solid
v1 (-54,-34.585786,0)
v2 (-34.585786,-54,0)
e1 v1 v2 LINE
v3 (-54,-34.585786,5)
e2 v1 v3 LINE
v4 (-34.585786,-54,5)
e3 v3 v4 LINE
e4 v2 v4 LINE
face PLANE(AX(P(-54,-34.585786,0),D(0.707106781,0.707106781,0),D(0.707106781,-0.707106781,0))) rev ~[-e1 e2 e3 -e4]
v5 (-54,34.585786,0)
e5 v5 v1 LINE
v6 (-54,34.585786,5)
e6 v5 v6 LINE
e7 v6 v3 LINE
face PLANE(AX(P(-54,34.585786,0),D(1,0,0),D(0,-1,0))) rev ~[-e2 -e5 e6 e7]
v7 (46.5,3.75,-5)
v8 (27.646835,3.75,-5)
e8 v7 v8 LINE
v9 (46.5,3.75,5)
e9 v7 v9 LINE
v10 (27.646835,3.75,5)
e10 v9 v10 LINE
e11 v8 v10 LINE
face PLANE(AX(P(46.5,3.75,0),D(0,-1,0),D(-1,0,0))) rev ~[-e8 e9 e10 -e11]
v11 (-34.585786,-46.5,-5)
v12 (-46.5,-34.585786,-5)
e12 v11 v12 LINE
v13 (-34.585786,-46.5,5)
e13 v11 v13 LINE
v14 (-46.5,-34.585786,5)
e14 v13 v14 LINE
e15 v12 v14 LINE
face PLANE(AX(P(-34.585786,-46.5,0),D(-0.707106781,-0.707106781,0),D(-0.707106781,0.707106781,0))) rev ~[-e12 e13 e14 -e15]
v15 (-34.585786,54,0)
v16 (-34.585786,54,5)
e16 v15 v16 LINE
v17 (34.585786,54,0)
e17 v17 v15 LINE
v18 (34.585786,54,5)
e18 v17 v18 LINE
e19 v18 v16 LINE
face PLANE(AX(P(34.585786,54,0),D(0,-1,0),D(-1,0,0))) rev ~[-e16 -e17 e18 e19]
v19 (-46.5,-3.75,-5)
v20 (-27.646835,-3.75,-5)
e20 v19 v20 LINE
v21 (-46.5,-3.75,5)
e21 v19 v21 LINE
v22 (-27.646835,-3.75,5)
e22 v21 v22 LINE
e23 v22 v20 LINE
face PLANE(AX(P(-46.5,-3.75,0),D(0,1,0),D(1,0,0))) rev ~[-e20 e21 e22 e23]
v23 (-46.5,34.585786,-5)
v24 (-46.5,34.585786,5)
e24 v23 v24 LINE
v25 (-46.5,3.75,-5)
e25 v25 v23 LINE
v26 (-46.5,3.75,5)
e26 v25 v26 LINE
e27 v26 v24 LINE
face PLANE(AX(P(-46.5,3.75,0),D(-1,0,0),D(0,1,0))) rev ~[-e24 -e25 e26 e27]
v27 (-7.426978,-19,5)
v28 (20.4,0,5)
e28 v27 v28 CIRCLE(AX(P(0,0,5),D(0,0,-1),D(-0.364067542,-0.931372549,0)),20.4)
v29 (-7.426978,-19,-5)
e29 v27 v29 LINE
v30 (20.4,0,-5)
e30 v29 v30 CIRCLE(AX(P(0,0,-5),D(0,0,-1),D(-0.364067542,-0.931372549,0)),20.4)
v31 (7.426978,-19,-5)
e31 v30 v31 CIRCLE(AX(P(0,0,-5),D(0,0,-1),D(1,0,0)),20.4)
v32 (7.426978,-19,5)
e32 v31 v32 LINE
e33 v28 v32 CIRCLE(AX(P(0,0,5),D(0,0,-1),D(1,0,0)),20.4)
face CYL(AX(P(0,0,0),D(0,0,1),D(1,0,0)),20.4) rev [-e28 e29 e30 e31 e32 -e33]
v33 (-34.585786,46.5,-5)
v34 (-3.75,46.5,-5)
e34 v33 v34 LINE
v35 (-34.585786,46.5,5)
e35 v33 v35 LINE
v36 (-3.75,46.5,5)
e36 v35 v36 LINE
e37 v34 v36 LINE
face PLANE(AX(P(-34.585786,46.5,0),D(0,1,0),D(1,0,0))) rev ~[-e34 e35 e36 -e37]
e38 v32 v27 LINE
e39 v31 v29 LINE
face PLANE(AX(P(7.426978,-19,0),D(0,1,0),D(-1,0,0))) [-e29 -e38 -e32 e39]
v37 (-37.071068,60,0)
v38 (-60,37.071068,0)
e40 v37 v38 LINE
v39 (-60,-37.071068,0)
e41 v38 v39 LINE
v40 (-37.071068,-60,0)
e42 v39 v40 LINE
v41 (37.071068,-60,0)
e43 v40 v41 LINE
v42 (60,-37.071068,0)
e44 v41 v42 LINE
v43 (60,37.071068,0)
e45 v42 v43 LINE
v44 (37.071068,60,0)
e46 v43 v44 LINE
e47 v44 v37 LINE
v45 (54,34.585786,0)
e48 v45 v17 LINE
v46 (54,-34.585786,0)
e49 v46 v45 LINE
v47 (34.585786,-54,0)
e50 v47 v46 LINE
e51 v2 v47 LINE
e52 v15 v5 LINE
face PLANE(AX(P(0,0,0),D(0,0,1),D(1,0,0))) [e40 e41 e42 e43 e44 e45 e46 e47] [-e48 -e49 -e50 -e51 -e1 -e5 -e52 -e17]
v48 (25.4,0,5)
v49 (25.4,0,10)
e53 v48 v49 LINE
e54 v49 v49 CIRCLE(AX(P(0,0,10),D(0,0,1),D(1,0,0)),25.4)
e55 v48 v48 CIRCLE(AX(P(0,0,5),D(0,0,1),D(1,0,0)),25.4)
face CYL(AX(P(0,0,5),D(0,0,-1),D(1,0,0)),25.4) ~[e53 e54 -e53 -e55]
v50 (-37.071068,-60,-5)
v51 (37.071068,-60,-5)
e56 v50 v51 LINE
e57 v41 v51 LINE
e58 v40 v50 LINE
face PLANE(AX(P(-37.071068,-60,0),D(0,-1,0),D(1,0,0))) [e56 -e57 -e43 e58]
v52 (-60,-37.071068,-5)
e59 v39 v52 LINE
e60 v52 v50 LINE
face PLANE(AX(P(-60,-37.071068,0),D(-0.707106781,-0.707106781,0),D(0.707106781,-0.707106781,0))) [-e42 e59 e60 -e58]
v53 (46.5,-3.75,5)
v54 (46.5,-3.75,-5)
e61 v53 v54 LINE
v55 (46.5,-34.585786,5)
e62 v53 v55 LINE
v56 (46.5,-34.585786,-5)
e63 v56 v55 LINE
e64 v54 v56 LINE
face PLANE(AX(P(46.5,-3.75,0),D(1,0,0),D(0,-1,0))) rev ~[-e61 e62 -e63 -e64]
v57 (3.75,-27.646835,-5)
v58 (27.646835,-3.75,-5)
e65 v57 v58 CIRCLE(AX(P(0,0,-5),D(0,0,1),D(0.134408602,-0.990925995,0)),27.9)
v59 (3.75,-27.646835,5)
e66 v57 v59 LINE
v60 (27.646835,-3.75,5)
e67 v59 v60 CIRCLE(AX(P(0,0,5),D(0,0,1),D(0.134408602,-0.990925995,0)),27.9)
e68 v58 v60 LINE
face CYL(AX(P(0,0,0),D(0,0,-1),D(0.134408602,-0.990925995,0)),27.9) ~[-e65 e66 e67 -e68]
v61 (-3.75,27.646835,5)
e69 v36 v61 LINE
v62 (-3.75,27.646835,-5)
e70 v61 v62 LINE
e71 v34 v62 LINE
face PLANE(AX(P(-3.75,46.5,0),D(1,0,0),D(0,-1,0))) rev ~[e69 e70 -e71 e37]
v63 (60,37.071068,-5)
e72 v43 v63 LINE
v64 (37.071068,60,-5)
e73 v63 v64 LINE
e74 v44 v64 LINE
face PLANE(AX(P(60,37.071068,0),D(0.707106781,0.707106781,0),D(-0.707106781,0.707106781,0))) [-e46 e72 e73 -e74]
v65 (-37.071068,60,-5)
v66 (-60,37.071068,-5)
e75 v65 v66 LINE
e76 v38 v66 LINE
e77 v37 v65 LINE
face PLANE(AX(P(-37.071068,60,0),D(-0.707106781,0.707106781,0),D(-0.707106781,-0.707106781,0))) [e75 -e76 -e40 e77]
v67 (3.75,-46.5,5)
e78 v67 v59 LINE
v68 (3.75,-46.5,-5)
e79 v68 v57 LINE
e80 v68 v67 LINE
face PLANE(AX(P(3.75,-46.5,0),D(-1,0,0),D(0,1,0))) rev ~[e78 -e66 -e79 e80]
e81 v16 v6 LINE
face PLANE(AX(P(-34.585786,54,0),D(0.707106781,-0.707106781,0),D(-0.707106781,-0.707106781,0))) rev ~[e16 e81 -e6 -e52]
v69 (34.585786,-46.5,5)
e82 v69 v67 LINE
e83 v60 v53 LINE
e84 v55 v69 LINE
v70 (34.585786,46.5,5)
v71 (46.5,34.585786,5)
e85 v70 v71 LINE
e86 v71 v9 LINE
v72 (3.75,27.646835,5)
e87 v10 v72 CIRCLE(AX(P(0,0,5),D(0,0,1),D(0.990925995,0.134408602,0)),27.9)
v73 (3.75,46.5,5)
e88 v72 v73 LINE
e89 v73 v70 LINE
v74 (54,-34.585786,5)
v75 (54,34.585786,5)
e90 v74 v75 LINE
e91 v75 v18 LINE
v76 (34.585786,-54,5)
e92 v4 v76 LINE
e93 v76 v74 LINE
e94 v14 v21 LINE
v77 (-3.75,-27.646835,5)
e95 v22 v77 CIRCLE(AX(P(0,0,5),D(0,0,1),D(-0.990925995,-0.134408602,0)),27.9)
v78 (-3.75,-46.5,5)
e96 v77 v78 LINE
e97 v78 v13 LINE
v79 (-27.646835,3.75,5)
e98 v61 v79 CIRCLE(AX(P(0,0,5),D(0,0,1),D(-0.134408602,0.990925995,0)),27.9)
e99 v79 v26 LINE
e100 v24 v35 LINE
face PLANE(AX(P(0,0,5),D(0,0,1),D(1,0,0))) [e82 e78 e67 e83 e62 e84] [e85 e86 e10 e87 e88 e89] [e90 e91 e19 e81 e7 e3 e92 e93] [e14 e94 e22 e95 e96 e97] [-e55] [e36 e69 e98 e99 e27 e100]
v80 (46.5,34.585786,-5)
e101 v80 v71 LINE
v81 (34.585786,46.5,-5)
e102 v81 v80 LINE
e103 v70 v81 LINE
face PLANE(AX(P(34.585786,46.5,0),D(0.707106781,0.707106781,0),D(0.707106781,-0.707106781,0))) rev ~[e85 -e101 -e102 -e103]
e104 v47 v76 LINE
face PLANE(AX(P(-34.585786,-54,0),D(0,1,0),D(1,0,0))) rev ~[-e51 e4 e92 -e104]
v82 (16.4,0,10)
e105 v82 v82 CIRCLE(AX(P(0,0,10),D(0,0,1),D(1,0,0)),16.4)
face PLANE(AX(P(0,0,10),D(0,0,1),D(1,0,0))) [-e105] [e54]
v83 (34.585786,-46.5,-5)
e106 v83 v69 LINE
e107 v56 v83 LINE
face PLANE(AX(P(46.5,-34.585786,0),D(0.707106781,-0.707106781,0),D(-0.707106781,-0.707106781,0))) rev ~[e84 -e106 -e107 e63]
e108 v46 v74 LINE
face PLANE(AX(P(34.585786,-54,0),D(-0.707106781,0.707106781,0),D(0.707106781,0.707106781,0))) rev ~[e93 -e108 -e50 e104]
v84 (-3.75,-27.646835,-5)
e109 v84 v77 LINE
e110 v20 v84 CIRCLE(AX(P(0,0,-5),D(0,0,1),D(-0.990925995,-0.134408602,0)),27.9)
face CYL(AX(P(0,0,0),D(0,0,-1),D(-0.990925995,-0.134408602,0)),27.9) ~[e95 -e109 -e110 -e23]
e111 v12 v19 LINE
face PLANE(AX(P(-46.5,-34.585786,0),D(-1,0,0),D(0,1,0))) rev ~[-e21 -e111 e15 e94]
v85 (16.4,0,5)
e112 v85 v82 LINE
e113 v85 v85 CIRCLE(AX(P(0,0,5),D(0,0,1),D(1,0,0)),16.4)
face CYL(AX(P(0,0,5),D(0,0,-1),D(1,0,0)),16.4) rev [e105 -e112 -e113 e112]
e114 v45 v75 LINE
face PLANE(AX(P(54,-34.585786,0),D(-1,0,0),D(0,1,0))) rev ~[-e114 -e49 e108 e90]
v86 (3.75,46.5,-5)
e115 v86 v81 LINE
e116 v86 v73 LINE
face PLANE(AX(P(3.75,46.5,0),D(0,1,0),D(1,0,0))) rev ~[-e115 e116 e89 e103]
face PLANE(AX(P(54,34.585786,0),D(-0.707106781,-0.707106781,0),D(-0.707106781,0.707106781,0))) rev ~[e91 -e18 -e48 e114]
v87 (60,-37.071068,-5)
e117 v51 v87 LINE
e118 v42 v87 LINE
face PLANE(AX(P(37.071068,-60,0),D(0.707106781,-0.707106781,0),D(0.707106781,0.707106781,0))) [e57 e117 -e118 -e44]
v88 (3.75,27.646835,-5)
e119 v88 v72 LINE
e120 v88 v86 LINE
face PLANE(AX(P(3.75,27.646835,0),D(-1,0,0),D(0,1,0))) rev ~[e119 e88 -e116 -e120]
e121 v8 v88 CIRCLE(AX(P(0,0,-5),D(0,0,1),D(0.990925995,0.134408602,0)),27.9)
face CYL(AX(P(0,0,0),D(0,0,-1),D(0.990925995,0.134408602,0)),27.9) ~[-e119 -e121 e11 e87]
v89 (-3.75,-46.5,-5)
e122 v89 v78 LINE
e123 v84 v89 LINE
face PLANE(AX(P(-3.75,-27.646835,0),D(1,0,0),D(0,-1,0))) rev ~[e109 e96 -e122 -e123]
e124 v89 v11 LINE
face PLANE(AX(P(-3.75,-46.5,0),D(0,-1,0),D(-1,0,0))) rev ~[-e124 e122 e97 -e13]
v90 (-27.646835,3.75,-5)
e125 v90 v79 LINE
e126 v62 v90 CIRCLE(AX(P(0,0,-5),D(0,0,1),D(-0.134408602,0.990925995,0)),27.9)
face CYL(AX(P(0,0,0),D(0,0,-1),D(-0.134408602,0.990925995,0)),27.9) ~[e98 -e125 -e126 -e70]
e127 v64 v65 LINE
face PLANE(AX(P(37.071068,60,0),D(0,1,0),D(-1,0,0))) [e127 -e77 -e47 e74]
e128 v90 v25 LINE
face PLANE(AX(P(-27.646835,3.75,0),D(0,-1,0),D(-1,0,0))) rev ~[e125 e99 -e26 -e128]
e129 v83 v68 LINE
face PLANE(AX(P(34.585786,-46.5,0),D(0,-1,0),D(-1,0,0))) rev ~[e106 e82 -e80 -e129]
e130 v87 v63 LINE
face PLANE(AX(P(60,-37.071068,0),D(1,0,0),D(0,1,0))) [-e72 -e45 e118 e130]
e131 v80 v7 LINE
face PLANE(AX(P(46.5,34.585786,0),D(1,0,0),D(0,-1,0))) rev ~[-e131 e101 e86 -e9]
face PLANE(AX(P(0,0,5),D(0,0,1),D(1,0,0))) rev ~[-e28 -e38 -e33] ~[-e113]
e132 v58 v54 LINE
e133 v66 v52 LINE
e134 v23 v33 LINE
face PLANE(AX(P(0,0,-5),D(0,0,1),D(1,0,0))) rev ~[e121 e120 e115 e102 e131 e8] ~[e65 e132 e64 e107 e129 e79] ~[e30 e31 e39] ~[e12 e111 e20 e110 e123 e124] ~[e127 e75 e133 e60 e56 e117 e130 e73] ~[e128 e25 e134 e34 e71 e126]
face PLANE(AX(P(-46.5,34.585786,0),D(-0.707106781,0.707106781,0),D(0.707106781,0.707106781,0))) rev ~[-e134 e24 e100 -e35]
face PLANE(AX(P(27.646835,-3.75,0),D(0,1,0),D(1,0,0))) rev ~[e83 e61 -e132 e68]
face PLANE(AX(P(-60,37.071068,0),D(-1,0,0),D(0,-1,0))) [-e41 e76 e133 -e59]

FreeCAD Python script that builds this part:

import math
import FreeCAD as App
import Part
import Sketcher
from FreeCAD import Vector
Q = App.Units.Quantity

doc = App.newDocument("Part")
params = doc.addObject("Spreadsheet::Sheet", "Params")
for row, (alias, value) in enumerate([
    ("sketch1_radius", "27.9 mm"),
    ("sketch1_radius2", "20.4 mm"),
    ("pad1_length", "5 mm"),
    ("sketch2_radius", "27.9 mm"),
    ("sketch2_radius2", "20.4 mm"),
    ("pad2_length", "5 mm"),
    ("sketch3_diameter", "50.8 mm"),
    ("sketch3_diameter2", "32.8 mm"),
    ("pad3_length", "5 mm"),
], start=1):
    params.set(f"A{row}", alias)
    params.set(f"B{row}", "=" + value)
    params.setAlias(f"B{row}", alias)

body = doc.addObject("PartDesign::Body", "Body")

# Sketch on XY plane
sketch1 = doc.addObject("Sketcher::SketchObject", "Sketch")
body.addObject(sketch1)
sketch1.AttachmentSupport = (doc.XY_Plane, [""])
sketch1.MapMode = "FlatFace"
sketch1.addGeometry([
    Part.LineSegment(Vector(-60, 37.071068, 0), Vector(-60, -37.071068, 0)),  # 0
    Part.LineSegment(Vector(-60, -37.071068, 0), Vector(-37.071068, -60, 0)),  # 1
    Part.LineSegment(Vector(-37.071068, -60, 0), Vector(37.071068, -60, 0)),  # 2
    Part.LineSegment(Vector(37.071068, -60, 0), Vector(60, -37.071068, 0)),  # 3
    Part.LineSegment(Vector(60, -37.071068, 0), Vector(60, 37.071068, 0)),  # 4
    Part.LineSegment(Vector(60, 37.071068, 0), Vector(37.071068, 60, 0)),  # 5
    Part.LineSegment(Vector(37.071068, 60, 0), Vector(-37.071068, 60, 0)),  # 6
    Part.LineSegment(Vector(-37.071068, 60, 0), Vector(-60, 37.071068, 0)),  # 7
    Part.ArcOfCircle(Part.Circle(Vector(0, 0, 0), Vector(0, 0, 1), 27.9), math.radians(-172.275576), math.radians(-97.724424)),  # 8
    Part.LineSegment(Vector(-3.75, -27.646835, 0), Vector(-3.75, -46.5, 0)),  # 9
    Part.LineSegment(Vector(-3.75, -46.5, 0), Vector(-34.585786, -46.5, 0)),  # 10
    Part.LineSegment(Vector(-34.585786, -46.5, 0), Vector(-46.5, -34.585786, 0)),  # 11
    Part.LineSegment(Vector(-46.5, -34.585786, 0), Vector(-46.5, -3.75, 0)),  # 12
    Part.LineSegment(Vector(-46.5, -3.75, 0), Vector(-27.646835, -3.75, 0)),  # 13
    Part.ArcOfCircle(Part.Circle(Vector(0, 0, 0), Vector(0, 0, 1), 27.9), math.radians(-82.275576), math.radians(-7.724424)),  # 14
    Part.LineSegment(Vector(27.646835, -3.75, 0), Vector(46.5, -3.75, 0)),  # 15
    Part.LineSegment(Vector(46.5, -3.75, 0), Vector(46.5, -34.585786, 0)),  # 16
    Part.LineSegment(Vector(46.5, -34.585786, 0), Vector(34.585786, -46.5, 0)),  # 17
    Part.LineSegment(Vector(34.585786, -46.5, 0), Vector(3.75, -46.5, 0)),  # 18
    Part.LineSegment(Vector(3.75, -46.5, 0), Vector(3.75, -27.646835, 0)),  # 19
    Part.ArcOfCircle(Part.Circle(Vector(0, 0, 0), Vector(0, 0, 1), 20.4), math.radians(-68.649791), math.radians(0)),  # 20
    Part.LineSegment(Vector(7.426978, -19, 0), Vector(-7.426978, -19, 0)),  # 21
    Part.ArcOfCircle(Part.Circle(Vector(0, 0, 0), Vector(0, 0, 1), 20.4), math.radians(0), math.radians(248.649791)),  # 22
    Part.ArcOfCircle(Part.Circle(Vector(0, 0, 0), Vector(0, 0, 1), 27.9), math.radians(97.724424), math.radians(172.275576)),  # 23
    Part.LineSegment(Vector(-27.646835, 3.75, 0), Vector(-46.5, 3.75, 0)),  # 24
    Part.LineSegment(Vector(-46.5, 3.75, 0), Vector(-46.5, 34.585786, 0)),  # 25
    Part.LineSegment(Vector(-46.5, 34.585786, 0), Vector(-34.585786, 46.5, 0)),  # 26
    Part.LineSegment(Vector(-34.585786, 46.5, 0), Vector(-3.75, 46.5, 0)),  # 27
    Part.LineSegment(Vector(-3.75, 46.5, 0), Vector(-3.75, 27.646835, 0)),  # 28
    Part.LineSegment(Vector(34.585786, 46.5, 0), Vector(46.5, 34.585786, 0)),  # 29
    Part.LineSegment(Vector(46.5, 34.585786, 0), Vector(46.5, 3.75, 0)),  # 30
    Part.LineSegment(Vector(46.5, 3.75, 0), Vector(27.646835, 3.75, 0)),  # 31
    Part.ArcOfCircle(Part.Circle(Vector(0, 0, 0), Vector(0, 0, 1), 27.9), math.radians(7.724424), math.radians(82.275576)),  # 32
    Part.LineSegment(Vector(3.75, 27.646835, 0), Vector(3.75, 46.5, 0)),  # 33
    Part.LineSegment(Vector(3.75, 46.5, 0), Vector(34.585786, 46.5, 0)),  # 34
], False)
sketch1.addConstraint([
    Sketcher.Constraint("Coincident", 0, 2, 1, 1),
    Sketcher.Constraint("Coincident", 1, 2, 2, 1),
    Sketcher.Constraint("Coincident", 2, 2, 3, 1),
    Sketcher.Constraint("Coincident", 3, 2, 4, 1),
    Sketcher.Constraint("Coincident", 4, 2, 5, 1),
    Sketcher.Constraint("Coincident", 5, 2, 6, 1),
    Sketcher.Constraint("Coincident", 6, 2, 7, 1),
    Sketcher.Constraint("Coincident", 7, 2, 0, 1),
    Sketcher.Constraint("Coincident", 8, 2, 9, 1),
    Sketcher.Constraint("Coincident", 9, 2, 10, 1),
    Sketcher.Constraint("Coincident", 10, 2, 11, 1),
    Sketcher.Constraint("Coincident", 11, 2, 12, 1),
    Sketcher.Constraint("Coincident", 12, 2, 13, 1),
    Sketcher.Constraint("Coincident", 13, 2, 8, 1),
    Sketcher.Constraint("Coincident", 14, 2, 15, 1),
    Sketcher.Constraint("Coincident", 15, 2, 16, 1),
    Sketcher.Constraint("Coincident", 16, 2, 17, 1),
    Sketcher.Constraint("Coincident", 17, 2, 18, 1),
    Sketcher.Constraint("Coincident", 18, 2, 19, 1),
    Sketcher.Constraint("Coincident", 19, 2, 14, 1),
    Sketcher.Constraint("Coincident", 20, 1, 21, 1),
    Sketcher.Constraint("Coincident", 21, 2, 22, 2),
    Sketcher.Constraint("Tangent", 22, 1, 20, 2),
    Sketcher.Constraint("Coincident", 23, 2, 24, 1),
    Sketcher.Constraint("Coincident", 24, 2, 25, 1),
    Sketcher.Constraint("Coincident", 25, 2, 26, 1),
    Sketcher.Constraint("Coincident", 26, 2, 27, 1),
    Sketcher.Constraint("Coincident", 27, 2, 28, 1),
    Sketcher.Constraint("Coincident", 28, 2, 23, 1),
    Sketcher.Constraint("Coincident", 29, 2, 30, 1),
    Sketcher.Constraint("Coincident", 30, 2, 31, 1),
    Sketcher.Constraint("Coincident", 31, 2, 32, 1),
    Sketcher.Constraint("Coincident", 32, 2, 33, 1),
    Sketcher.Constraint("Coincident", 33, 2, 34, 1),
    Sketcher.Constraint("Coincident", 34, 2, 29, 1),
    Sketcher.Constraint("Vertical", 0),
    Sketcher.Constraint("Horizontal", 2),
    Sketcher.Constraint("Vertical", 4),
    Sketcher.Constraint("Horizontal", 6),
    Sketcher.Constraint("Vertical", 9),
    Sketcher.Constraint("Horizontal", 10),
    Sketcher.Constraint("Vertical", 12),
    Sketcher.Constraint("Horizontal", 13),
    Sketcher.Constraint("Horizontal", 15),
    Sketcher.Constraint("Vertical", 16),
    Sketcher.Constraint("Horizontal", 18),
    Sketcher.Constraint("Vertical", 19),
    Sketcher.Constraint("Horizontal", 21),
    Sketcher.Constraint("Horizontal", 24),
    Sketcher.Constraint("Vertical", 25),
    Sketcher.Constraint("Horizontal", 27),
    Sketcher.Constraint("Vertical", 28),
    Sketcher.Constraint("Vertical", 30),
    Sketcher.Constraint("Horizontal", 31),
    Sketcher.Constraint("Vertical", 33),
    Sketcher.Constraint("Horizontal", 34),
    Sketcher.Constraint("Coincident", 8, 3, -1, 1),
    Sketcher.Constraint("Coincident", 14, 3, -1, 1),
    Sketcher.Constraint("Coincident", 20, 3, -1, 1),
    Sketcher.Constraint("Coincident", 23, 3, -1, 1),
    Sketcher.Constraint("Coincident", 32, 3, -1, 1),
    Sketcher.Constraint("Equal", 8, 14),
    Sketcher.Constraint("Equal", 20, 22),
    Sketcher.Constraint("Equal", 14, 23),
    Sketcher.Constraint("Equal", 23, 32),
    Sketcher.Constraint("Symmetric", 0, 2, 4, 2, -1, 1),
    Sketcher.Constraint("Symmetric", 1, 2, 5, 2, -1, 1),
    Sketcher.Constraint("Symmetric", 15, 2, 24, 2, -1, 1),
    Sketcher.Constraint("Symmetric", 17, 2, 26, 2, -1, 1),
    Sketcher.Constraint("Symmetric", 11, 2, 29, 2, -1, 1),
    Sketcher.Constraint("Symmetric", 9, 2, 33, 2, -1, 1),
    Sketcher.Constraint("Symmetric", 12, 2, 15, 2, -2),
    Sketcher.Constraint("Symmetric", 10, 2, 17, 2, -2),
    Sketcher.Constraint("PointOnObject", 22, 1, -1),
    Sketcher.Constraint("Perpendicular", 1, 3),
    Sketcher.Constraint("Perpendicular", 5, 7),
    Sketcher.Constraint("Perpendicular", 7, 11),
    Sketcher.Constraint("Perpendicular", 11, 17),
    Sketcher.Constraint("Parallel", 17, 26),
    Sketcher.Constraint("Perpendicular", 26, 29),
    Sketcher.Constraint("Horizontal", 0, 2, 3, 2),
    Sketcher.Constraint("Horizontal", 4, 2, 7, 2),
    Sketcher.Constraint("Horizontal", 11, 2, 16, 2),
    Sketcher.Constraint("Horizontal", 8, 2, 19, 2),
    Sketcher.Constraint("Horizontal", 24, 2, 30, 2),
    Sketcher.Constraint("Horizontal", 28, 2, 32, 2),
    Sketcher.Constraint("Equal", 6, 0),
    Sketcher.Constraint("Equal", 31, 9),
    Sketcher.Constraint("Equal", 34, 12),
    Sketcher.Constraint("Radius", 8, Q("27.9 mm")),
    Sketcher.Constraint("Radius", 20, Q("20.4 mm")),
    Sketcher.Constraint("DistanceX", 0, 2, -1, 1, Q("60 mm")),
    Sketcher.Constraint("DistanceY", 20, 1, -1, 1, Q("19 mm")),
    Sketcher.Constraint("DistanceY", 9, 2, -1, 1, Q("46.5 mm")),
    Sketcher.Constraint("DistanceX", 9, 2, 18, 2, Q("7.5 mm")),
    Sketcher.Constraint("DistanceX", 2, 1, 2, 2, Q("74.142136 mm")),
    Sketcher.Constraint("DistanceX", 10, 2, 10, 1, Q("30.835786 mm")),
])
sketch1.setExpression("Constraints[89]", "Params.sketch1_radius")
sketch1.setExpression("Constraints[90]", "Params.sketch1_radius2")
pad1 = doc.addObject("PartDesign::Pad", "Pad")
body.addObject(pad1)
pad1.Profile = sketch1
pad1.setExpression("Length", "Params.pad1_length")
pad1.Reversed = True

# Sketch on XY plane
sketch2 = doc.addObject("Sketcher::SketchObject", "Sketch001")
body.addObject(sketch2)
sketch2.AttachmentSupport = (doc.XY_Plane, [""])
sketch2.MapMode = "FlatFace"
sketch2.addGeometry([
    Part.LineSegment(Vector(34.585786, 54, 0), Vector(-34.585786, 54, 0)),  # 0
    Part.LineSegment(Vector(-34.585786, 54, 0), Vector(-54, 34.585786, 0)),  # 1
    Part.LineSegment(Vector(-54, 34.585786, 0), Vector(-54, -34.585786, 0)),  # 2
    Part.LineSegment(Vector(-54, -34.585786, 0), Vector(-34.585786, -54, 0)),  # 3
    Part.LineSegment(Vector(-34.585786, -54, 0), Vector(34.585786, -54, 0)),  # 4
    Part.LineSegment(Vector(34.585786, -54, 0), Vector(54, -34.585786, 0)),  # 5
    Part.LineSegment(Vector(54, -34.585786, 0), Vector(54, 34.585786, 0)),  # 6
    Part.LineSegment(Vector(54, 34.585786, 0), Vector(34.585786, 54, 0)),  # 7
    Part.LineSegment(Vector(34.585786, 46.5, 0), Vector(46.5, 34.585786, 0)),  # 8
    Part.LineSegment(Vector(46.5, 34.585786, 0), Vector(46.5, 3.75, 0)),  # 9
    Part.LineSegment(Vector(46.5, 3.75, 0), Vector(27.646835, 3.75, 0)),  # 10
    Part.ArcOfCircle(Part.Circle(Vector(0, 0, 0), Vector(0, 0, 1), 27.9), math.radians(7.724424), math.radians(82.275576)),  # 11
    Part.LineSegment(Vector(3.75, 27.646835, 0), Vector(3.75, 46.5, 0)),  # 12
    Part.LineSegment(Vector(3.75, 46.5, 0), Vector(34.585786, 46.5, 0)),  # 13
    Part.ArcOfCircle(Part.Circle(Vector(0, 0, 0), Vector(0, 0, 1), 27.9), math.radians(97.724424), math.radians(172.275576)),  # 14
    Part.LineSegment(Vector(-27.646835, 3.75, 0), Vector(-46.5, 3.75, 0)),  # 15
    Part.LineSegment(Vector(-46.5, 3.75, 0), Vector(-46.5, 34.585786, 0)),  # 16
    Part.LineSegment(Vector(-46.5, 34.585786, 0), Vector(-34.585786, 46.5, 0)),  # 17
    Part.LineSegment(Vector(-34.585786, 46.5, 0), Vector(-3.75, 46.5, 0)),  # 18
    Part.LineSegment(Vector(-3.75, 46.5, 0), Vector(-3.75, 27.646835, 0)),  # 19
    Part.LineSegment(Vector(46.5, -3.75, 0), Vector(46.5, -34.585786, 0)),  # 20
    Part.LineSegment(Vector(46.5, -34.585786, 0), Vector(34.585786, -46.5, 0)),  # 21
    Part.LineSegment(Vector(34.585786, -46.5, 0), Vector(3.75, -46.5, 0)),  # 22
    Part.LineSegment(Vector(3.75, -46.5, 0), Vector(3.75, -27.646835, 0)),  # 23
    Part.ArcOfCircle(Part.Circle(Vector(0, 0, 0), Vector(0, 0, 1), 27.9), math.radians(-82.275576), math.radians(-7.724424)),  # 24
    Part.LineSegment(Vector(27.646835, -3.75, 0), Vector(46.5, -3.75, 0)),  # 25
    Part.ArcOfCircle(Part.Circle(Vector(0, 0, 0), Vector(0, 0, 1), 27.9), math.radians(-172.275576), math.radians(-97.724424)),  # 26
    Part.LineSegment(Vector(-3.75, -27.646835, 0), Vector(-3.75, -46.5, 0)),  # 27
    Part.LineSegment(Vector(-3.75, -46.5, 0), Vector(-34.585786, -46.5, 0)),  # 28
    Part.LineSegment(Vector(-34.585786, -46.5, 0), Vector(-46.5, -34.585786, 0)),  # 29
    Part.LineSegment(Vector(-46.5, -34.585786, 0), Vector(-46.5, -3.75, 0)),  # 30
    Part.LineSegment(Vector(-46.5, -3.75, 0), Vector(-27.646835, -3.75, 0)),  # 31
    Part.ArcOfCircle(Part.Circle(Vector(0, 0, 0), Vector(0, 0, 1), 20.4), math.radians(0), math.radians(248.649791)),  # 32
    Part.ArcOfCircle(Part.Circle(Vector(0, 0, 0), Vector(0, 0, 1), 20.4), math.radians(-68.649791), math.radians(0)),  # 33
    Part.LineSegment(Vector(7.426978, -19, 0), Vector(-7.426978, -19, 0)),  # 34
], False)
sketch2.addConstraint([
    Sketcher.Constraint("Coincident", 0, 2, 1, 1),
    Sketcher.Constraint("Coincident", 1, 2, 2, 1),
    Sketcher.Constraint("Coincident", 2, 2, 3, 1),
    Sketcher.Constraint("Coincident", 3, 2, 4, 1),
    Sketcher.Constraint("Coincident", 4, 2, 5, 1),
    Sketcher.Constraint("Coincident", 5, 2, 6, 1),
    Sketcher.Constraint("Coincident", 6, 2, 7, 1),
    Sketcher.Constraint("Coincident", 7, 2, 0, 1),
    Sketcher.Constraint("Coincident", 8, 2, 9, 1),
    Sketcher.Constraint("Coincident", 9, 2, 10, 1),
    Sketcher.Constraint("Coincident", 10, 2, 11, 1),
    Sketcher.Constraint("Coincident", 11, 2, 12, 1),
    Sketcher.Constraint("Coincident", 12, 2, 13, 1),
    Sketcher.Constraint("Coincident", 13, 2, 8, 1),
    Sketcher.Constraint("Coincident", 14, 2, 15, 1),
    Sketcher.Constraint("Coincident", 15, 2, 16, 1),
    Sketcher.Constraint("Coincident", 16, 2, 17, 1),
    Sketcher.Constraint("Coincident", 17, 2, 18, 1),
    Sketcher.Constraint("Coincident", 18, 2, 19, 1),
    Sketcher.Constraint("Coincident", 19, 2, 14, 1),
    Sketcher.Constraint("Coincident", 20, 2, 21, 1),
    Sketcher.Constraint("Coincident", 21, 2, 22, 1),
    Sketcher.Constraint("Coincident", 22, 2, 23, 1),
    Sketcher.Constraint("Coincident", 23, 2, 24, 1),
    Sketcher.Constraint("Coincident", 24, 2, 25, 1),
    Sketcher.Constraint("Coincident", 25, 2, 20, 1),
    Sketcher.Constraint("Coincident", 26, 2, 27, 1),
    Sketcher.Constraint("Coincident", 27, 2, 28, 1),
    Sketcher.Constraint("Coincident", 28, 2, 29, 1),
    Sketcher.Constraint("Coincident", 29, 2, 30, 1),
    Sketcher.Constraint("Coincident", 30, 2, 31, 1),
    Sketcher.Constraint("Coincident", 31, 2, 26, 1),
    Sketcher.Constraint("Tangent", 32, 1, 33, 2),
    Sketcher.Constraint("Coincident", 33, 1, 34, 1),
    Sketcher.Constraint("Coincident", 34, 2, 32, 2),
    Sketcher.Constraint("Horizontal", 0),
    Sketcher.Constraint("Vertical", 2),
    Sketcher.Constraint("Horizontal", 4),
    Sketcher.Constraint("Vertical", 6),
    Sketcher.Constraint("Vertical", 9),
    Sketcher.Constraint("Horizontal", 10),
    Sketcher.Constraint("Vertical", 12),
    Sketcher.Constraint("Horizontal", 13),
    Sketcher.Constraint("Horizontal", 15),
    Sketcher.Constraint("Vertical", 16),
    Sketcher.Constraint("Horizontal", 18),
    Sketcher.Constraint("Vertical", 19),
    Sketcher.Constraint("Vertical", 20),
    Sketcher.Constraint("Horizontal", 22),
    Sketcher.Constraint("Vertical", 23),
    Sketcher.Constraint("Horizontal", 25),
    Sketcher.Constraint("Vertical", 27),
    Sketcher.Constraint("Horizontal", 28),
    Sketcher.Constraint("Vertical", 30),
    Sketcher.Constraint("Horizontal", 31),
    Sketcher.Constraint("Horizontal", 34),
    Sketcher.Constraint("Coincident", 11, 3, -1, 1),
    Sketcher.Constraint("Coincident", 14, 3, -1, 1),
    Sketcher.Constraint("Coincident", 24, 3, -1, 1),
    Sketcher.Constraint("Coincident", 26, 3, -1, 1),
    Sketcher.Constraint("Coincident", 32, 3, -1, 1),
    Sketcher.Constraint("Equal", 11, 14),
    Sketcher.Constraint("Equal", 14, 24),
    Sketcher.Constraint("Equal", 24, 26),
    Sketcher.Constraint("Equal", 32, 33),
    Sketcher.Constraint("Symmetric", 0, 2, 4, 2, -1, 1),
    Sketcher.Constraint("Symmetric", 1, 2, 5, 2, -1, 1),
    Sketcher.Constraint("Symmetric", 16, 2, 20, 2, -1, 1),
    Sketcher.Constraint("Symmetric", 17, 2, 21, 2, -1, 1),
    Sketcher.Constraint("Symmetric", 12, 2, 27, 2, -1, 1),
    Sketcher.Constraint("Symmetric", 8, 2, 29, 2, -1, 1),
    Sketcher.Constraint("Symmetric", 9, 2, 15, 2, -2),
    Sketcher.Constraint("Symmetric", 13, 2, 17, 2, -2),
    Sketcher.Constraint("PointOnObject", 32, 1, -1),
    Sketcher.Constraint("Perpendicular", 1, 3),
    Sketcher.Constraint("Perpendicular", 5, 7),
    Sketcher.Constraint("Parallel", 7, 8),
    Sketcher.Constraint("Perpendicular", 8, 17),
    Sketcher.Constraint("Perpendicular", 21, 29),
    Sketcher.Constraint("Horizontal", 2, 2, 5, 2),
    Sketcher.Constraint("Horizontal", 1, 2, 6, 2),
    Sketcher.Constraint("Horizontal", 6, 2, 8, 2),
    Sketcher.Constraint("Horizontal", 8, 2, 16, 2),
    Sketcher.Constraint("Horizontal", 11, 2, 19, 2),
    Sketcher.Constraint("Horizontal", 23, 2, 26, 2),
    Sketcher.Constraint("Horizontal", 25, 2, 30, 2),
    Sketcher.Constraint("Vertical", 7, 2, 13, 2),
    Sketcher.Constraint("Vertical", 10, 2, 24, 2),
    Sketcher.Constraint("Equal", 4, 2),
    Sketcher.Constraint("Equal", 28, 9),
    Sketcher.Constraint("Radius", 11, Q("27.9 mm")),
    Sketcher.Constraint("Radius", 32, Q("20.4 mm")),
    Sketcher.Constraint("DistanceY", -1, 1, 0, 2, Q("54 mm")),
    Sketcher.Constraint("DistanceY", 33, 1, -1, 1, Q("19 mm")),
    Sketcher.Constraint("DistanceX", -1, 1, 8, 2, Q("46.5 mm")),
    Sketcher.Constraint("DistanceX", 18, 2, 12, 2, Q("7.5 mm")),
    Sketcher.Constraint("DistanceX", 0, 2, 0, 1, Q("69.171573 mm")),
])
sketch2.setExpression("Constraints[90]", "Params.sketch2_radius")
sketch2.setExpression("Constraints[91]", "Params.sketch2_radius2")
pad2 = doc.addObject("PartDesign::Pad", "Pad001")
body.addObject(pad2)
pad2.Profile = sketch2
pad2.setExpression("Length", "Params.pad2_length")

# Sketch on XY plane
sketch3 = doc.addObject("Sketcher::SketchObject", "Sketch002")
body.addObject(sketch3)
sketch3.AttachmentSupport = (doc.XY_Plane, [""])
sketch3.MapMode = "FlatFace"
sketch3.AttachmentOffset = App.Placement(Vector(0, 0, 5), App.Rotation())
sketch3.addGeometry([
    Part.Circle(Vector(0, 0, 0), Vector(0, 0, 1), 25.4),
    Part.Circle(Vector(0, 0, 0), Vector(0, 0, 1), 16.4),
], False)
sketch3.addConstraint([
    Sketcher.Constraint("Coincident", 0, 3, -1, 1),
    Sketcher.Constraint("Coincident", 1, 3, -1, 1),
    Sketcher.Constraint("Diameter", 0, Q("50.8 mm")),
    Sketcher.Constraint("Diameter", 1, Q("32.8 mm")),
])
sketch3.setExpression("Constraints[2]", "Params.sketch3_diameter")
sketch3.setExpression("Constraints[3]", "Params.sketch3_diameter2")
pad3 = doc.addObject("PartDesign::Pad", "Pad002")
body.addObject(pad3)
pad3.Profile = sketch3
pad3.setExpression("Length", "Params.pad3_length")

doc.recompute()
